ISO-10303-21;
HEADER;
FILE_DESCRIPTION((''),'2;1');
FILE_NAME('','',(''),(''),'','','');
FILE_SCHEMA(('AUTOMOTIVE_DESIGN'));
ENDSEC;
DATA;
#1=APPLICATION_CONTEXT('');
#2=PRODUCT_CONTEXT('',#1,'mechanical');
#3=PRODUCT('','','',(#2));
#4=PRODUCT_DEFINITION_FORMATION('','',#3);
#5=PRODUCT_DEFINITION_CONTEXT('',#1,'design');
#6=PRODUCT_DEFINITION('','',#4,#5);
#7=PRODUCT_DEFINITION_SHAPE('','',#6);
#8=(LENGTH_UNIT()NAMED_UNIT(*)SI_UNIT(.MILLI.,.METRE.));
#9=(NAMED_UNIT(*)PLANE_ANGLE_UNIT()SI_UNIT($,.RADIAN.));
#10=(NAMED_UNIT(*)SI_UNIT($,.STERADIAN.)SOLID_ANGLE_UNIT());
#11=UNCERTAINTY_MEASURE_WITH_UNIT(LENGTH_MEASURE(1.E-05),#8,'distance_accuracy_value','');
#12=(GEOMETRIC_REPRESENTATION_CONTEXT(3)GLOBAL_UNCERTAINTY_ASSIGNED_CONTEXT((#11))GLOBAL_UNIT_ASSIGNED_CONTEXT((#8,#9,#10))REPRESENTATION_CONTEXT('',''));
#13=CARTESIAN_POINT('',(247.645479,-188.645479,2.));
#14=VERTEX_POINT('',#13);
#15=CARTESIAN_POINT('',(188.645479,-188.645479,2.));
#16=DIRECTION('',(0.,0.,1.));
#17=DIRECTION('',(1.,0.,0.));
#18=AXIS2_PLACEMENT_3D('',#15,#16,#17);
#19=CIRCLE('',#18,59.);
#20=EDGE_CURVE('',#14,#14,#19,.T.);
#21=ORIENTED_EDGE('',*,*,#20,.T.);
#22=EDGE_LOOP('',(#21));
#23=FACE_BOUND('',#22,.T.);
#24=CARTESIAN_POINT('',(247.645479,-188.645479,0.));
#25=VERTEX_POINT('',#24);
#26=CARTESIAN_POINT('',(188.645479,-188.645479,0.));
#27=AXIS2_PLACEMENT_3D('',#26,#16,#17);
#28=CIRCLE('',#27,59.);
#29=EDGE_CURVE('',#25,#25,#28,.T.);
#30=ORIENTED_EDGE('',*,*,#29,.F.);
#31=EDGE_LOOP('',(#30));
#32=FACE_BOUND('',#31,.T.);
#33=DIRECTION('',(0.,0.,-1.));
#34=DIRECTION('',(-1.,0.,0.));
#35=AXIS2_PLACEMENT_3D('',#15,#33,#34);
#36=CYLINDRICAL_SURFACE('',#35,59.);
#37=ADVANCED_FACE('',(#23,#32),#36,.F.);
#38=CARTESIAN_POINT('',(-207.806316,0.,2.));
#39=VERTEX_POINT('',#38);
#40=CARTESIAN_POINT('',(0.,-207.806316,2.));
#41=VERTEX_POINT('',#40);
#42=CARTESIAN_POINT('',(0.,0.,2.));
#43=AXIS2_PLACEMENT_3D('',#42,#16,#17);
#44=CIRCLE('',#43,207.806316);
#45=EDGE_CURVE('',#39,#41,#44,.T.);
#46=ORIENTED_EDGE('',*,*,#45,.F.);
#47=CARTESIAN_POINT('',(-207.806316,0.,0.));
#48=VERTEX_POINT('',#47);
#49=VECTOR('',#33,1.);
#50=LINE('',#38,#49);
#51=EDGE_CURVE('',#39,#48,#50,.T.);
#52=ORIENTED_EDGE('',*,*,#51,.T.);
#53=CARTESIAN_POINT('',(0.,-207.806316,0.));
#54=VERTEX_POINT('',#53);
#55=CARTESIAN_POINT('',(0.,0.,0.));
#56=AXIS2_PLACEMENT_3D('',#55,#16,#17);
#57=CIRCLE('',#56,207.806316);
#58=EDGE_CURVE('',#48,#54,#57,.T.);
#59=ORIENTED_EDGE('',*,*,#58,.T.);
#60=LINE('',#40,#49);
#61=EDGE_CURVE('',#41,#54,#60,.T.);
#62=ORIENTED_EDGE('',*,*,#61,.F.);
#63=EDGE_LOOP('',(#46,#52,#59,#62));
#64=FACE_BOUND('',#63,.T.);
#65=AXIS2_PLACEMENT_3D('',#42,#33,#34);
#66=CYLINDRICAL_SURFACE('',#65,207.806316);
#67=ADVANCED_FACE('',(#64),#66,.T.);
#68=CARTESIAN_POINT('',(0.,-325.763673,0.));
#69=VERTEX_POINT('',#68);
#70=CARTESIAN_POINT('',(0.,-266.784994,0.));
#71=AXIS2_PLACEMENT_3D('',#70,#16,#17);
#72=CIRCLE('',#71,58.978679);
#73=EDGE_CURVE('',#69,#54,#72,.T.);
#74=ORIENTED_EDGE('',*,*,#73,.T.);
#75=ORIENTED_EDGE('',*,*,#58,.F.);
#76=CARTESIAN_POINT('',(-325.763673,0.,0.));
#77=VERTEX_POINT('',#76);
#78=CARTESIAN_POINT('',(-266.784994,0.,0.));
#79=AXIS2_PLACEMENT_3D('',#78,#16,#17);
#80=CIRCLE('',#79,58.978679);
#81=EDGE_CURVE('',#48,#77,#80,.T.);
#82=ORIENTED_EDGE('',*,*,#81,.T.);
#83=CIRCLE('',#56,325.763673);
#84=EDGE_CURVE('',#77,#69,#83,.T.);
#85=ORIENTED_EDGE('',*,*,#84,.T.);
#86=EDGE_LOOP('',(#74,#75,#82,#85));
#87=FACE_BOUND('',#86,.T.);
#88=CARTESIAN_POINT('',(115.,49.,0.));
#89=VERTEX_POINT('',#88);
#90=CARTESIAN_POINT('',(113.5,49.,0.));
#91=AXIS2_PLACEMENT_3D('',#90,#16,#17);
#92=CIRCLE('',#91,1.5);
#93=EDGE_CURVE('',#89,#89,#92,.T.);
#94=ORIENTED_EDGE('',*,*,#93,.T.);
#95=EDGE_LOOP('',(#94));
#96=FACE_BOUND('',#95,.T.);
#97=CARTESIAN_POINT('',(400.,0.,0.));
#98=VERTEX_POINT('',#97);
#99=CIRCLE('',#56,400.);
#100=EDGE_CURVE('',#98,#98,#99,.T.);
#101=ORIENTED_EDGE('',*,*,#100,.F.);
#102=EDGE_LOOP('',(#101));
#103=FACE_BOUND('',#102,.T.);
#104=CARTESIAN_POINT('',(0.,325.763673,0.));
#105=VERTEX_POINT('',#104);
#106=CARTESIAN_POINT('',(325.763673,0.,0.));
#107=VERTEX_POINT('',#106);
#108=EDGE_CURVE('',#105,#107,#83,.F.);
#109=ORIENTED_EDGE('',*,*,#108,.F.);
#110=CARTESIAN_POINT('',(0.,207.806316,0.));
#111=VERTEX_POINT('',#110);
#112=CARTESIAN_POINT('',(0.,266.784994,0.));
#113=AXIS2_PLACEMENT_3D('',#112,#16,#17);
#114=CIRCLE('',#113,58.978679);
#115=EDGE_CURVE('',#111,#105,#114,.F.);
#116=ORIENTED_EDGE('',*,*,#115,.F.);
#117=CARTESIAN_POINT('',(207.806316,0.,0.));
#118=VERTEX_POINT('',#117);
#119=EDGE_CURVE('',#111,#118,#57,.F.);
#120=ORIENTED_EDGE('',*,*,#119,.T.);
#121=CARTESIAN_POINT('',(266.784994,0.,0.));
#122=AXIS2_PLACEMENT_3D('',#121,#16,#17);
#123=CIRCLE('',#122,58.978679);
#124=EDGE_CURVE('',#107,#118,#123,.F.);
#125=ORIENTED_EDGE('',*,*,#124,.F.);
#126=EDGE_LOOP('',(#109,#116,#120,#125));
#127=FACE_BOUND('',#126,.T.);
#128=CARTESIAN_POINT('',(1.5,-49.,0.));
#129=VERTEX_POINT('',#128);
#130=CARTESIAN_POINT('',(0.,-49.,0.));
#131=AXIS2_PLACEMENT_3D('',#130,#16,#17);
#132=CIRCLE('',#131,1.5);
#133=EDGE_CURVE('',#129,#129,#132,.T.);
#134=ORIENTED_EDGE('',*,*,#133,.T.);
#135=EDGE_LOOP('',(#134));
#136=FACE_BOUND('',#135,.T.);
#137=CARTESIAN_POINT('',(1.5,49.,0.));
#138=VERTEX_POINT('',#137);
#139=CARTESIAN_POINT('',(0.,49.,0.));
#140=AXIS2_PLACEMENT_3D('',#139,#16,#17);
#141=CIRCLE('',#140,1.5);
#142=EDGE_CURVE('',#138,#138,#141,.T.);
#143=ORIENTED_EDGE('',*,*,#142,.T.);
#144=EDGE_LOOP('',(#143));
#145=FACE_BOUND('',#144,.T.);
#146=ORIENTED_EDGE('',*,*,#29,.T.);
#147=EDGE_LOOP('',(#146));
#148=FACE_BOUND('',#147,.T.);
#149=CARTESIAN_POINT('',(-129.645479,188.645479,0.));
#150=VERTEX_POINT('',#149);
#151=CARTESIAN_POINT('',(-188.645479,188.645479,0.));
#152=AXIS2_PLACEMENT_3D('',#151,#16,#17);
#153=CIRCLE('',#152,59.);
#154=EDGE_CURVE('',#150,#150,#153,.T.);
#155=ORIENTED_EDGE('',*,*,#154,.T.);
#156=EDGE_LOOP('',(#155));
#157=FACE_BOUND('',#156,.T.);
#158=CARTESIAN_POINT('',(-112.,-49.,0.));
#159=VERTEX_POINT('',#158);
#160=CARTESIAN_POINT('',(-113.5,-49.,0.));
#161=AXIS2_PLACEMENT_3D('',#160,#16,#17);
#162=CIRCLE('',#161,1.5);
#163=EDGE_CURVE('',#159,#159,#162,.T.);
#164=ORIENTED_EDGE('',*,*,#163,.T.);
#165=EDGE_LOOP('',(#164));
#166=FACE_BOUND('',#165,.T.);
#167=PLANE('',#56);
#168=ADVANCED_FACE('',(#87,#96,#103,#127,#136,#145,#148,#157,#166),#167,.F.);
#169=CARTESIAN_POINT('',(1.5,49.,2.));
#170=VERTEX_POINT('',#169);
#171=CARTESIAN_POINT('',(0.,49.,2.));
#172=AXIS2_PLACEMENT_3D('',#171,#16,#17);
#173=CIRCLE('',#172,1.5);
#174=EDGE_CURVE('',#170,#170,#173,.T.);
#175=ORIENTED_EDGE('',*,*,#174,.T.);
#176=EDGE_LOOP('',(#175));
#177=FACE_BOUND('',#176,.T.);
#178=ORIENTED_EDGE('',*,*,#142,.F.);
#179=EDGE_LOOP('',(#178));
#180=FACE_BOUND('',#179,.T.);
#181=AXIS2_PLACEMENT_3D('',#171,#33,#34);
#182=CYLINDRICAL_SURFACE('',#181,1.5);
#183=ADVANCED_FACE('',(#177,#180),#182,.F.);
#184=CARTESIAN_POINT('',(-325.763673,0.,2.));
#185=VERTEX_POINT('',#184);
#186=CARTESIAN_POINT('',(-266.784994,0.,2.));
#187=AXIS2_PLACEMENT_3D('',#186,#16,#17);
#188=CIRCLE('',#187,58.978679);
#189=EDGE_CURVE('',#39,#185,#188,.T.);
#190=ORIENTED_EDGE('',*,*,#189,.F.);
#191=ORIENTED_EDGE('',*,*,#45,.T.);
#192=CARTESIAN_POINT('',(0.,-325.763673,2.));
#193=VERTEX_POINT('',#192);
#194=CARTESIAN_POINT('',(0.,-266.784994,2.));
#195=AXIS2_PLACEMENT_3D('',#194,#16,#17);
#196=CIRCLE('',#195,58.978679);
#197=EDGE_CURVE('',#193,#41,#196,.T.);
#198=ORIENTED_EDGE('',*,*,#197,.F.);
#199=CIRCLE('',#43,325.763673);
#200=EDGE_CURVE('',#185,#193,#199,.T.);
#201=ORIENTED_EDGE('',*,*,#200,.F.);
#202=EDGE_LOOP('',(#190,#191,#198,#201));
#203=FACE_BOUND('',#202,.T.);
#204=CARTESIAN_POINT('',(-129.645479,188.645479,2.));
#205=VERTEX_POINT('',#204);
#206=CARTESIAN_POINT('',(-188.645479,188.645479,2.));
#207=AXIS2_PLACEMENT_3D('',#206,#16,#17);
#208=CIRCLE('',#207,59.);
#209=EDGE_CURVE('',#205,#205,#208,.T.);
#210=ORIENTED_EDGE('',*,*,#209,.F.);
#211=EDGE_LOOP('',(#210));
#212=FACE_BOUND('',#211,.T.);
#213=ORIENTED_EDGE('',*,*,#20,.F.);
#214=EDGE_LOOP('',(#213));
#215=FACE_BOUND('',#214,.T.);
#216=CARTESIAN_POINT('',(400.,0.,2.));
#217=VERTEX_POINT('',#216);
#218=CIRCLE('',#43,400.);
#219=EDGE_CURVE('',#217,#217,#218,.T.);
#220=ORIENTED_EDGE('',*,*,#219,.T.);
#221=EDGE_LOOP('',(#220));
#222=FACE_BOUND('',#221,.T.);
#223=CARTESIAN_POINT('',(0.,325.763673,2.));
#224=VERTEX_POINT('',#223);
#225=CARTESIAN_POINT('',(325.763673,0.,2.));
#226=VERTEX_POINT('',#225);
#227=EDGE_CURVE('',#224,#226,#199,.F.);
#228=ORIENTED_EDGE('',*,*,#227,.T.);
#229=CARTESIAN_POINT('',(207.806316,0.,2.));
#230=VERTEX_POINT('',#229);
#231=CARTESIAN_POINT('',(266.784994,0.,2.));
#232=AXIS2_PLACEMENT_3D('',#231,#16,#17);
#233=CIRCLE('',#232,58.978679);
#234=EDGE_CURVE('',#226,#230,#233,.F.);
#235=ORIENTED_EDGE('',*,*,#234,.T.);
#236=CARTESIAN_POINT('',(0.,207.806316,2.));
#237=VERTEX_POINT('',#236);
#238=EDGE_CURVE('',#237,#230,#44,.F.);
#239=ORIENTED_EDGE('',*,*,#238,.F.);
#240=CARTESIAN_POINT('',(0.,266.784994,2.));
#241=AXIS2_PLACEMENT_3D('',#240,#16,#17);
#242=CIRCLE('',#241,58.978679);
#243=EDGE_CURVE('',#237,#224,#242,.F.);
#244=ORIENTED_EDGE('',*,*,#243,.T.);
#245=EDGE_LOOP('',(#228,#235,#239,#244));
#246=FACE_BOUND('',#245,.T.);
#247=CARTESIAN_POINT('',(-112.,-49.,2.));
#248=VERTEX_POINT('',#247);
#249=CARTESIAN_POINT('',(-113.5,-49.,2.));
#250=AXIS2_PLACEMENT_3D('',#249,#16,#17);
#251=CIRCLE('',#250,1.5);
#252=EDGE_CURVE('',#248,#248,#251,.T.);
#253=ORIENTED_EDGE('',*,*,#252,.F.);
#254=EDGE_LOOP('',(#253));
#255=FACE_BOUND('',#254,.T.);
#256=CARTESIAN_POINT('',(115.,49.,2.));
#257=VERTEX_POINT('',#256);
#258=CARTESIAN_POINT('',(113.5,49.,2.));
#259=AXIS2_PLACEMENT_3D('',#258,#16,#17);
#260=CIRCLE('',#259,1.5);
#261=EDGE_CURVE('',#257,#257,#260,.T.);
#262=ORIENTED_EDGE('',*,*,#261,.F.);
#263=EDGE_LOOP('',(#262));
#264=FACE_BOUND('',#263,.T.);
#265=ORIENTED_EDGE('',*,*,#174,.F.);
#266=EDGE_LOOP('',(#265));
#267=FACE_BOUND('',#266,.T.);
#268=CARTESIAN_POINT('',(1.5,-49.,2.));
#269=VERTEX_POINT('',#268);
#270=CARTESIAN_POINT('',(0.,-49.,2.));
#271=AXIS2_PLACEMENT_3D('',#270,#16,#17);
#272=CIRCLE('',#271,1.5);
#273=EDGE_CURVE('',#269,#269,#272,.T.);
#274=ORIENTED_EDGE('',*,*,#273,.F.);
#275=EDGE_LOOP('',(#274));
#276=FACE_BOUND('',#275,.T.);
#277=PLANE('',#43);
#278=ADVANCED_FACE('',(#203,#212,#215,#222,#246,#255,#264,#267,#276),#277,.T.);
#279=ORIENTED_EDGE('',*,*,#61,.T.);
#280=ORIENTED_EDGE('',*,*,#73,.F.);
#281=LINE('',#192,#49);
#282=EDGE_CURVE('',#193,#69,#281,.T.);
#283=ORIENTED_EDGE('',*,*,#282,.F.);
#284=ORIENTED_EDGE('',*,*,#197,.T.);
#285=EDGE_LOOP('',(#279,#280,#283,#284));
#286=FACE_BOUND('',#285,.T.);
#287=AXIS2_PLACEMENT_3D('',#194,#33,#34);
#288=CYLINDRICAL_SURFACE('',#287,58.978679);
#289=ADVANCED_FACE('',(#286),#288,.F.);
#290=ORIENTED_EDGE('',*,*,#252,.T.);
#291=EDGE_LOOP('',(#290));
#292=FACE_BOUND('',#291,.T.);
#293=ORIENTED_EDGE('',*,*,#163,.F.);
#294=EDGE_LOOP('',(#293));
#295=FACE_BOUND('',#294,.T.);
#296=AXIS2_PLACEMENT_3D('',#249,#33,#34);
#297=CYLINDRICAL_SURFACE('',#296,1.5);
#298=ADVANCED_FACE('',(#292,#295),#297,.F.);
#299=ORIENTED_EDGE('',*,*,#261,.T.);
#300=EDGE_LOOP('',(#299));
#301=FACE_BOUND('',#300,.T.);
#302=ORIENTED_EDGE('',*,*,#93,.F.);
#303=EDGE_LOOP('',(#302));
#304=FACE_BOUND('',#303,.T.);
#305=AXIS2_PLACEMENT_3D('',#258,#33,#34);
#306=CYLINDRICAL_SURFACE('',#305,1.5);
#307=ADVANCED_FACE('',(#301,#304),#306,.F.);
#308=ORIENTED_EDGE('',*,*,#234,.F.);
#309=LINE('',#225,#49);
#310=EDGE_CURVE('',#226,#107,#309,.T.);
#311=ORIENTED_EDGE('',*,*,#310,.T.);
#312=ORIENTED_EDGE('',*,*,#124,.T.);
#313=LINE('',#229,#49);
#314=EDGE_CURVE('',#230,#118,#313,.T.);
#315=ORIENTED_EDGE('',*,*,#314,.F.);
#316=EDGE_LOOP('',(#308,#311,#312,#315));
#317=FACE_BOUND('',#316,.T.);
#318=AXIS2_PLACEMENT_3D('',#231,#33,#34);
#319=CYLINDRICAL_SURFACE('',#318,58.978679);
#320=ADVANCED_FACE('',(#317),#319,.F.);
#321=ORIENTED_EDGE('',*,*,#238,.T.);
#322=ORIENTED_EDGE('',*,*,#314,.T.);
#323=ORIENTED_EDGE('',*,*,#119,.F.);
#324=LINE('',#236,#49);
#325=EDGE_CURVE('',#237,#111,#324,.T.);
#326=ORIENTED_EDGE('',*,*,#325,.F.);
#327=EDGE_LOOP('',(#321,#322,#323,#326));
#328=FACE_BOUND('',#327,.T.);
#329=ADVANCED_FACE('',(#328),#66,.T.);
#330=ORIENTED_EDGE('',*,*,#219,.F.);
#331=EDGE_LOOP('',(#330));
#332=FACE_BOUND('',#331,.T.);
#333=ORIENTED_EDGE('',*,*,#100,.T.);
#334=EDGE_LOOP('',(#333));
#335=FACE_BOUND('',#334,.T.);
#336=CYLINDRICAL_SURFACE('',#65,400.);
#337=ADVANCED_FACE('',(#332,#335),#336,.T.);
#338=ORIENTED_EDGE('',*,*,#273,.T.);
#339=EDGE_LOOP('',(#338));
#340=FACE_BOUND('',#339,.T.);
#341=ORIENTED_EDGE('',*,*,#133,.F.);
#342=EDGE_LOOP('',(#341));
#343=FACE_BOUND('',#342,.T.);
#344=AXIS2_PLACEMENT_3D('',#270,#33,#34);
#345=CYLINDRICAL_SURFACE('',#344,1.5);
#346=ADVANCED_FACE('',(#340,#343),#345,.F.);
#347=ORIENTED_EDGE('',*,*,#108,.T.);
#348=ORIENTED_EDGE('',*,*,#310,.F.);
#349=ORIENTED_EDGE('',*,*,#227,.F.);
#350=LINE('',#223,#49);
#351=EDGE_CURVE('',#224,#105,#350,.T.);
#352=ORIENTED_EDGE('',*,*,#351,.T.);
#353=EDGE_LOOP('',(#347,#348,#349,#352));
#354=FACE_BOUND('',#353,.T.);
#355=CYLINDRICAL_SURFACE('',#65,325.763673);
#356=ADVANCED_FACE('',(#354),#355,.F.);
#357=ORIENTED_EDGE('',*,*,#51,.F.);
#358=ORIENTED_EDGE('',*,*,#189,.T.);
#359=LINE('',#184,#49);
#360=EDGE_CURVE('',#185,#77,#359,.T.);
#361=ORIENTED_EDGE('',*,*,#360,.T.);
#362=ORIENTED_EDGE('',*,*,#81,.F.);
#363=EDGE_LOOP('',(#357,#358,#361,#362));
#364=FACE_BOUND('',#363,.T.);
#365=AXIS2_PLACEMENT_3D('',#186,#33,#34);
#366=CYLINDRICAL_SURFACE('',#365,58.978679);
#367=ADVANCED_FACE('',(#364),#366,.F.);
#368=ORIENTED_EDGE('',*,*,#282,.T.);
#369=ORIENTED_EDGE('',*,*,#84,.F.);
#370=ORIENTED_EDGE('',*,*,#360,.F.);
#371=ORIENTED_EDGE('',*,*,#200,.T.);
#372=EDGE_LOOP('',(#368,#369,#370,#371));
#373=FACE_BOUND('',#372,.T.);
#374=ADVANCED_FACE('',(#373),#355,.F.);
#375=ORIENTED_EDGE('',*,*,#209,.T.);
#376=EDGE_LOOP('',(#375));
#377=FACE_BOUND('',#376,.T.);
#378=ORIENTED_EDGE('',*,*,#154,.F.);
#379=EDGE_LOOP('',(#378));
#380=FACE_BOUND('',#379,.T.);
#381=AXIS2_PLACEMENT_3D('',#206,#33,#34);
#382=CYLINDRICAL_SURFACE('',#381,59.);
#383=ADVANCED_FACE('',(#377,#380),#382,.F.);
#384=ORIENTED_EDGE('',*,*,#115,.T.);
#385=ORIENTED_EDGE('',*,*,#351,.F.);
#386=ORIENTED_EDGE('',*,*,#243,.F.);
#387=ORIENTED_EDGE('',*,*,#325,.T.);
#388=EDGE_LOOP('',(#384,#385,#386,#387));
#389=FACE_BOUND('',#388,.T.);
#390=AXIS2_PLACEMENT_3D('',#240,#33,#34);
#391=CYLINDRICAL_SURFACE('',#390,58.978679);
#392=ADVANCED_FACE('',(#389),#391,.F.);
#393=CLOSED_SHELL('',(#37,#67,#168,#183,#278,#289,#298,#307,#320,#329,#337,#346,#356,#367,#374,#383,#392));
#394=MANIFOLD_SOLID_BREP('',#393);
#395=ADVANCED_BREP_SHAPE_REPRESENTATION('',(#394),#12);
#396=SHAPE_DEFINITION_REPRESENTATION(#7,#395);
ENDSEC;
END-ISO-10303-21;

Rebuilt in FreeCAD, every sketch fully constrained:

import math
import FreeCAD as App
import Part
import Sketcher

V = App.Vector
Q = App.Units.Quantity

doc = App.newDocument("Part")
params = doc.addObject("Spreadsheet::Sheet", "Params")
for row, (alias, value) in enumerate([
    ("sketch1_diameter", "800 mm"),
    ("sketch1_diameter2", "3 mm"),
    ("sketch1_diameter3", "118 mm"),
    ("pad1_length", "2 mm"),
], start=1):
    params.set(f"A{row}", alias)
    params.set(f"B{row}", "=" + value)
    params.setAlias(f"B{row}", alias)

body = doc.addObject("PartDesign::Body", "Body")

# Sketch on XY plane
sketch1 = body.newObject("Sketcher::SketchObject", "Sketch")
sketch1.AttachmentSupport = (doc.getObject("XY_Plane"), [""])
sketch1.MapMode = "FlatFace"
sketch1.addGeometry(Part.Circle(V(0, 0, 0), V(0, 0, 1), 400), False)
sketch1.addGeometry(Part.ArcOfCircle(Part.Circle(V(0, 0, 0), V(0, 0, 1), 325.763673), math.radians(-180), math.radians(-90)), False)
sketch1.addGeometry(Part.ArcOfCircle(Part.Circle(V(-266.784994, 0, 0), V(0, 0, 1), 58.978679), math.radians(0), math.radians(180)), False)
sketch1.addGeometry(Part.ArcOfCircle(Part.Circle(V(0, 0, 0), V(0, 0, 1), 207.806316), math.radians(180), math.radians(270)), False)
sketch1.addGeometry(Part.ArcOfCircle(Part.Circle(V(0, -266.784994, 0), V(0, 0, 1), 58.978679), math.radians(-90), math.radians(90)), False)
sketch1.addGeometry(Part.Circle(V(-113.5, -49, 0), V(0, 0, 1), 1.5), False)
sketch1.addGeometry(Part.Circle(V(0, -49, 0), V(0, 0, 1), 1.5), False)
sketch1.addGeometry(Part.Circle(V(188.645479, -188.645479, 0), V(0, 0, 1), 59), False)
sketch1.addGeometry(Part.Circle(V(0, 49, 0), V(0, 0, 1), 1.5), False)
sketch1.addGeometry(Part.Circle(V(-188.645479, 188.645479, 0), V(0, 0, 1), 59), False)
sketch1.addGeometry(Part.Circle(V(113.5, 49, 0), V(0, 0, 1), 1.5), False)
sketch1.addGeometry(Part.ArcOfCircle(Part.Circle(V(0, 266.784994, 0), V(0, 0, 1), 58.978679), math.radians(90), math.radians(270)), False)
sketch1.addGeometry(Part.ArcOfCircle(Part.Circle(V(0, 0, 0), V(0, 0, 1), 325.763673), math.radians(0), math.radians(90)), False)
sketch1.addGeometry(Part.ArcOfCircle(Part.Circle(V(266.784994, 0, 0), V(0, 0, 1), 58.978679), math.radians(-180), math.radians(0)), False)
sketch1.addGeometry(Part.ArcOfCircle(Part.Circle(V(0, 0, 0), V(0, 0, 1), 207.806316), math.radians(0), math.radians(90)), False)
sketch1.addConstraint(Sketcher.Constraint("Tangent", 1, 1, 2, 2))
sketch1.addConstraint(Sketcher.Constraint("Tangent", 2, 1, 3, 1))
sketch1.addConstraint(Sketcher.Constraint("Tangent", 3, 2, 4, 2))
sketch1.addConstraint(Sketcher.Constraint("Tangent", 4, 1, 1, 2))
sketch1.addConstraint(Sketcher.Constraint("Tangent", 11, 1, 12, 2))
sketch1.addConstraint(Sketcher.Constraint("Tangent", 12, 1, 13, 2))
sketch1.addConstraint(Sketcher.Constraint("Tangent", 13, 1, 14, 1))
sketch1.addConstraint(Sketcher.Constraint("Tangent", 14, 2, 11, 2))
sketch1.addConstraint(Sketcher.Constraint("Coincident", 0, 3, -1, 1))
sketch1.addConstraint(Sketcher.Constraint("Coincident", 1, 3, -1, 1))
sketch1.addConstraint(Sketcher.Constraint("Coincident", 3, 3, -1, 1))
sketch1.addConstraint(Sketcher.Constraint("Coincident", 12, 3, -1, 1))
sketch1.addConstraint(Sketcher.Constraint("Coincident", 14, 3, -1, 1))
sketch1.addConstraint(Sketcher.Constraint("Equal", 5, 6))
sketch1.addConstraint(Sketcher.Constraint("Equal", 6, 8))
sketch1.addConstraint(Sketcher.Constraint("Equal", 7, 9))
sketch1.addConstraint(Sketcher.Constraint("Equal", 8, 10))
sketch1.addConstraint(Sketcher.Constraint("Equal", 4, 11))
sketch1.addConstraint(Sketcher.Constraint("Equal", 1, 12))
sketch1.addConstraint(Sketcher.Constraint("Symmetric", 6, 3, 8, 3, -1, 1))
sketch1.addConstraint(Sketcher.Constraint("Symmetric", 7, 3, 9, 3, -1, 1))
sketch1.addConstraint(Sketcher.Constraint("Symmetric", 5, 3, 10, 3, -1, 1))
sketch1.addConstraint(Sketcher.Constraint("PointOnObject", 2, 3, -1))
sketch1.addConstraint(Sketcher.Constraint("PointOnObject", 4, 3, -2))
sketch1.addConstraint(Sketcher.Constraint("PointOnObject", 6, 3, -2))
sketch1.addConstraint(Sketcher.Constraint("PointOnObject", 11, 3, -2))
sketch1.addConstraint(Sketcher.Constraint("PointOnObject", 13, 3, -1))
sketch1.addConstraint(Sketcher.Constraint("Horizontal", 5, 3, 6, 3))
sketch1.addConstraint(Sketcher.Constraint("Diameter", 0, Q("800 mm")))
sketch1.addConstraint(Sketcher.Constraint("Diameter", 5, Q("3 mm")))
sketch1.addConstraint(Sketcher.Constraint("Diameter", 7, Q("118 mm")))
sketch1.addConstraint(Sketcher.Constraint("DistanceY", 5, 3, -1, 1, Q("49 mm")))
sketch1.addConstraint(Sketcher.Constraint("DistanceX", 5, 3, -1, 1, Q("113.5 mm")))
sketch1.addConstraint(Sketcher.Constraint("Radius", 2, Q("58.978679 mm")))
sketch1.addConstraint(Sketcher.Constraint("Radius", 1, Q("325.763673 mm")))
sketch1.addConstraint(Sketcher.Constraint("DistanceX", -1, 1, 7, 3, Q("188.645479 mm")))
sketch1.addConstraint(Sketcher.Constraint("DistanceY", 7, 3, -1, 1, Q("188.645479 mm")))
sketch1.setExpression("Constraints[28]", "Params.sketch1_diameter")
sketch1.setExpression("Constraints[29]", "Params.sketch1_diameter2")
sketch1.setExpression("Constraints[30]", "Params.sketch1_diameter3")
pad1 = body.newObject("PartDesign::Pad", "Pad")
pad1.Profile = sketch1
pad1.setExpression("Length", "Params.pad1_length")

doc.recompute()
